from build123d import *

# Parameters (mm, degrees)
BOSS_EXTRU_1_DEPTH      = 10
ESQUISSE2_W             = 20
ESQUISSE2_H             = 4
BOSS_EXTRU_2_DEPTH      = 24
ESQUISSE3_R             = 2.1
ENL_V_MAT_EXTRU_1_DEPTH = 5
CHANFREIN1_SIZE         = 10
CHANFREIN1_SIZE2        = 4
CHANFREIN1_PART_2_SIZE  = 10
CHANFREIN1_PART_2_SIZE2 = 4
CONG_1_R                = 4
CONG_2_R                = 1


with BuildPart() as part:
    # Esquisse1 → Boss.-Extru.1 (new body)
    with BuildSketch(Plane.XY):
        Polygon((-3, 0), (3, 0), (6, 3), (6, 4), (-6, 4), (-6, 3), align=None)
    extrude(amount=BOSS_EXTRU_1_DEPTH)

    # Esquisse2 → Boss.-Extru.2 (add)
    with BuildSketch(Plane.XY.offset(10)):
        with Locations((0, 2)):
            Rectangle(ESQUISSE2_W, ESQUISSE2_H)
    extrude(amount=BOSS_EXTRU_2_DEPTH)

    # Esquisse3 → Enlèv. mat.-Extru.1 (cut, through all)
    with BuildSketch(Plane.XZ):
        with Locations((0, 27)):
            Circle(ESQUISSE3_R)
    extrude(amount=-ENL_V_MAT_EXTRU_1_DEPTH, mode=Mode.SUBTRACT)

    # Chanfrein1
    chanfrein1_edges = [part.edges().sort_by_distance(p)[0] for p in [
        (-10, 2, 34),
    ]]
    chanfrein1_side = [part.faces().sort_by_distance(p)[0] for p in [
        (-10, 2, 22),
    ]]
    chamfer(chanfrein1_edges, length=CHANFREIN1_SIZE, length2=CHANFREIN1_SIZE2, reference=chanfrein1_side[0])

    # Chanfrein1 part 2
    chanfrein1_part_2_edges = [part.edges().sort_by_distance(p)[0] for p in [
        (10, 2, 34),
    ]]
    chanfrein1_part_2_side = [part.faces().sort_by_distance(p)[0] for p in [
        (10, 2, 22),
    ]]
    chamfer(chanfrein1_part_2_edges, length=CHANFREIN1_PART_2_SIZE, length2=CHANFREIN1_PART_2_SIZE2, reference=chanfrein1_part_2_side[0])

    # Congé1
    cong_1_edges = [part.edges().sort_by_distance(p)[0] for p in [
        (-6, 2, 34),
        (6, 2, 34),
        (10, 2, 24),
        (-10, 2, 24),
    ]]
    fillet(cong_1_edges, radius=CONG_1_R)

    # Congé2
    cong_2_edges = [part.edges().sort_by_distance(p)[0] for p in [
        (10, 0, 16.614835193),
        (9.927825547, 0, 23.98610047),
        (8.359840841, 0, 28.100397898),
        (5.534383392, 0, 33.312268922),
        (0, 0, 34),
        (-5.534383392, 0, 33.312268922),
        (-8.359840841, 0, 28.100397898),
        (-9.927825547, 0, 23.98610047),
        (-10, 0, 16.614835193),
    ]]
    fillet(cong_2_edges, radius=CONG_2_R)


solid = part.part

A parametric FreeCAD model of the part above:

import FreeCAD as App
import Part
import Sketcher
Q = App.Units.Quantity


def edges_at(feature, points):
    """Names of the edges that pass closest to the given points."""
    edges = feature.Shape.Edges
    near = lambda p: min(range(len(edges)), key=lambda i: edges[i].distToShape(Part.Vertex(*p))[0])
    return sorted({f"Edge{near(p) + 1}" for p in points})

doc = App.newDocument("Part")
body = doc.addObject("PartDesign::Body", "Body")

# Sketch on XY plane
sketch1 = body.newObject("Sketcher::SketchObject", "Sketch")
sketch1.AttachmentSupport = (doc.getObject("XY_Plane"), [""])
sketch1.MapMode = "FlatFace"
sketch1.addGeometry([
    Part.LineSegment(App.Vector(-3, 0, 0), App.Vector(3, 0, 0)),  # 0
    Part.LineSegment(App.Vector(3, 0, 0), App.Vector(6, 3, 0)),  # 1
    Part.LineSegment(App.Vector(6, 3, 0), App.Vector(6, 4, 0)),  # 2
    Part.LineSegment(App.Vector(6, 4, 0), App.Vector(-6, 4, 0)),  # 3
    Part.LineSegment(App.Vector(-6, 4, 0), App.Vector(-6, 3, 0)),  # 4
    Part.LineSegment(App.Vector(-6, 3, 0), App.Vector(-3, 0, 0)),  # 5
], False)
sketch1.addConstraint([
    Sketcher.Constraint("Coincident", 0, 2, 1, 1),
    Sketcher.Constraint("Coincident", 1, 2, 2, 1),
    Sketcher.Constraint("Coincident", 2, 2, 3, 1),
    Sketcher.Constraint("Coincident", 3, 2, 4, 1),
    Sketcher.Constraint("Coincident", 4, 2, 5, 1),
    Sketcher.Constraint("Coincident", 5, 2, 0, 1),
    Sketcher.Constraint("Horizontal", 0),
    Sketcher.Constraint("Vertical", 2),
    Sketcher.Constraint("Horizontal", 3),
    Sketcher.Constraint("Vertical", 4),
    Sketcher.Constraint("Symmetric", 0, 2, 5, 2, -1, 1),
    Sketcher.Constraint("Symmetric", 1, 2, 4, 2, -2),
    Sketcher.Constraint("Perpendicular", 1, 5),
    Sketcher.Constraint("DistanceX", 0, 1, 0, 2, Q("6 mm")),
    Sketcher.Constraint("DistanceX", 3, 2, 3, 1, Q("12 mm")),
    Sketcher.Constraint("DistanceY", 2, 1, 2, 2, Q("1 mm")),
])
pad1 = body.newObject("PartDesign::Pad", "Pad")
pad1.Profile = sketch1
pad1.Length = 10

# Sketch on XY plane
sketch2 = body.newObject("Sketcher::SketchObject", "Sketch001")
sketch2.AttachmentSupport = (doc.getObject("XY_Plane"), [""])
sketch2.MapMode = "FlatFace"
sketch2.AttachmentOffset = App.Placement(App.Vector(0, 0, 10), App.Rotation())
sketch2.addGeometry([
    Part.LineSegment(App.Vector(-10, 4, 0), App.Vector(-10, 0, 0)),
    Part.LineSegment(App.Vector(-10, 0, 0), App.Vector(10, 0, 0)),
    Part.LineSegment(App.Vector(10, 0, 0), App.Vector(10, 4, 0)),
    Part.LineSegment(App.Vector(10, 4, 0), App.Vector(-10, 4, 0)),
], False)
sketch2.addConstraint([
    Sketcher.Constraint("Coincident", 0, 2, 1, 1),
    Sketcher.Constraint("Coincident", 1, 2, 2, 1),
    Sketcher.Constraint("Coincident", 2, 2, 3, 1),
    Sketcher.Constraint("Coincident", 3, 2, 0, 1),
    Sketcher.Constraint("Vertical", 0),
    Sketcher.Constraint("Horizontal", 1),
    Sketcher.Constraint("Vertical", 2),
    Sketcher.Constraint("Horizontal", 3),
    Sketcher.Constraint("Symmetric", 0, 2, 1, 2, -1, 1),
    Sketcher.Constraint("DistanceX", 1, 1, 1, 2, Q("20 mm")),
    Sketcher.Constraint("DistanceY", 0, 2, 0, 1, Q("4 mm")),
])
pad2 = body.newObject("PartDesign::Pad", "Pad001")
pad2.Profile = sketch2
pad2.Length = 24

# Sketch on XZ plane
sketch3 = body.newObject("Sketcher::SketchObject", "Sketch002")
sketch3.AttachmentSupport = (doc.getObject("XZ_Plane"), [""])
sketch3.MapMode = "FlatFace"
sketch3.addGeometry(Part.Circle(App.Vector(0, 27, 0), App.Vector(0, 0, 1), 2.1), False)
sketch3.addConstraint([
    Sketcher.Constraint("PointOnObject", 0, 3, -2),
    Sketcher.Constraint("Diameter", 0, Q("4.2 mm")),
    Sketcher.Constraint("DistanceY", -1, 1, 0, 3, Q("27 mm")),
])
pocket1 = body.newObject("PartDesign::Pocket", "Pocket")
pocket1.Profile = sketch3
pocket1.Type = "ThroughAll"
doc.recompute()

chamfer = body.newObject("PartDesign::Chamfer", "Chamfer")
chamfer.Base = (pocket1, edges_at(pocket1, [(-10, 2, 34)]))
chamfer.ChamferType = "Two distances"
chamfer.Size = 10
chamfer.Size2 = 4
doc.recompute()

chamfer2 = body.newObject("PartDesign::Chamfer", "Chamfer001")
chamfer2.Base = (chamfer, edges_at(chamfer, [(10, 2, 34)]))
chamfer2.ChamferType = "Two distances"
chamfer2.Size = 10
chamfer2.Size2 = 4
chamfer2.FlipDirection = True
doc.recompute()

fillet = body.newObject("PartDesign::Fillet", "Fillet")
fillet.Base = (chamfer2, edges_at(chamfer2, [
    (-6, 2, 34),
    (6, 2, 34),
    (10, 2, 24),
    (-10, 2, 24),
]))
fillet.Radius = 4
doc.recompute()

fillet2 = body.newObject("PartDesign::Fillet", "Fillet001")
fillet2.Base = (fillet, edges_at(fillet, [
    (10, 0, 16.615),
    (9.928, 0, 23.986),
    (8.36, 0, 28.1),
    (5.534, 0, 33.312),
    (0, 0, 34),
    (-5.534, 0, 33.312),
    (-8.36, 0, 28.1),
    (-9.928, 0, 23.986),
    (-10, 0, 16.615),
]))
fillet2.Radius = 1

doc.recompute()
